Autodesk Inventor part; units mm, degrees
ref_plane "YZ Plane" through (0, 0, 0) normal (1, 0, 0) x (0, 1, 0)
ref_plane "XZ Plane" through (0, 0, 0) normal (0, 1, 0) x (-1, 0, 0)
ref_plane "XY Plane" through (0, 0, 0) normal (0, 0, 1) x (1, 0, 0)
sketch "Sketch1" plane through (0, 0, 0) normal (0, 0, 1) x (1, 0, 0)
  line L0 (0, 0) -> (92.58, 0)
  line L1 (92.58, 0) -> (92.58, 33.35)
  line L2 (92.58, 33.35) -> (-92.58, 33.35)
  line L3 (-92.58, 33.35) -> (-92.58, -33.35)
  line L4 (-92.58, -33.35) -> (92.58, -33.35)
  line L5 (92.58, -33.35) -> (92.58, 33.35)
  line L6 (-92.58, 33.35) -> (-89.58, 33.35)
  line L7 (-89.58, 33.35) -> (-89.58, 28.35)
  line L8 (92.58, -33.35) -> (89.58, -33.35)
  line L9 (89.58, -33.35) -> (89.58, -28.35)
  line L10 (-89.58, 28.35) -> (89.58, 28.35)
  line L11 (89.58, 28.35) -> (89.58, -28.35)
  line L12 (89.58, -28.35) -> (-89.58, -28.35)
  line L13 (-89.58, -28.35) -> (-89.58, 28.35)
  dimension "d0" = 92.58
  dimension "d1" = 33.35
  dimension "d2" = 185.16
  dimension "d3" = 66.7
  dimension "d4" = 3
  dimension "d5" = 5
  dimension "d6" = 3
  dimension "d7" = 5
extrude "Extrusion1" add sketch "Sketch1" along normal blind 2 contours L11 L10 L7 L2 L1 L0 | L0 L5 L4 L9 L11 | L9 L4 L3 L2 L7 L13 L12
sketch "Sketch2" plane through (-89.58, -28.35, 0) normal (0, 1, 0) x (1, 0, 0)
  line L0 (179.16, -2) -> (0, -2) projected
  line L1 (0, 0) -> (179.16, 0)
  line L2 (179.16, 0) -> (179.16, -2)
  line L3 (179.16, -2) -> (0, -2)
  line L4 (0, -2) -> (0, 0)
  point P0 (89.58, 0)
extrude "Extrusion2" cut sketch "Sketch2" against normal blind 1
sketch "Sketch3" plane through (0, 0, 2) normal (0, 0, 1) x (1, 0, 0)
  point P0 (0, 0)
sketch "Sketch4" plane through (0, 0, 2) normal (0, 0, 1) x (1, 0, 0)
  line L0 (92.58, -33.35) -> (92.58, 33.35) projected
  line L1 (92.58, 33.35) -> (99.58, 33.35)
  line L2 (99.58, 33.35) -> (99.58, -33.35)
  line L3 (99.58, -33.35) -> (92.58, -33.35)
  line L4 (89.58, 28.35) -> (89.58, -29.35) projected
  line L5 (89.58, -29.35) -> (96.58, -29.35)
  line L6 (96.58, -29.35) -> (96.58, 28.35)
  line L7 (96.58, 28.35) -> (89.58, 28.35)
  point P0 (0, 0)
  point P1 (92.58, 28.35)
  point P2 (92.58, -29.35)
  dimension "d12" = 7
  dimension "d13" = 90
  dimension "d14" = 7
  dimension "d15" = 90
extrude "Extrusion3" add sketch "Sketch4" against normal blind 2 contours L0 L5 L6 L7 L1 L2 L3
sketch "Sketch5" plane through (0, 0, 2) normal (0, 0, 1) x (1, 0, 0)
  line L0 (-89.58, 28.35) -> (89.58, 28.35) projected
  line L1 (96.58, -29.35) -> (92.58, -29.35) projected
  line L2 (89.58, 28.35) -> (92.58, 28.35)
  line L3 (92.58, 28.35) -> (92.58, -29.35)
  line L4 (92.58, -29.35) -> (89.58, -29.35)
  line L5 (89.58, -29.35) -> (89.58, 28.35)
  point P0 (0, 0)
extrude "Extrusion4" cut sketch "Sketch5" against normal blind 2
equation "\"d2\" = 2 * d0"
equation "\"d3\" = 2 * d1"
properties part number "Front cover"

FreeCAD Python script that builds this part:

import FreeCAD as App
import Part
import Sketcher

V = App.Vector
Q = App.Units.Quantity

doc = App.newDocument("Part")
body = doc.addObject("PartDesign::Body", "Body")

# Sketch on XY plane
sketch1 = doc.addObject("Sketcher::SketchObject", "Sketch")
body.addObject(sketch1)
sketch1.AttachmentSupport = (doc.XY_Plane, [""])
sketch1.MapMode = "FlatFace"
sketch1.addGeometry([
    Part.LineSegment(V(93, 33, 0), V(-93, 33, 0)),  # 0
    Part.LineSegment(V(-93, 33, 0), V(-93, -33, 0)),  # 1
    Part.LineSegment(V(-93, -33, 0), V(93, -33, 0)),  # 2
    Part.LineSegment(V(93, -33, 0), V(93, 33, 0)),  # 3
    Part.LineSegment(V(90, 28, 0), V(90, -28, 0)),  # 4
    Part.LineSegment(V(90, -28, 0), V(-90, -28, 0)),  # 5
    Part.LineSegment(V(-90, -28, 0), V(-90, 28, 0)),  # 6
    Part.LineSegment(V(-90, 28, 0), V(90, 28, 0)),  # 7
], False)
sketch1.addConstraint([
    Sketcher.Constraint("Coincident", 0, 2, 1, 1),
    Sketcher.Constraint("Coincident", 1, 2, 2, 1),
    Sketcher.Constraint("Coincident", 2, 2, 3, 1),
    Sketcher.Constraint("Coincident", 3, 2, 0, 1),
    Sketcher.Constraint("Coincident", 4, 2, 5, 1),
    Sketcher.Constraint("Coincident", 5, 2, 6, 1),
    Sketcher.Constraint("Coincident", 6, 2, 7, 1),
    Sketcher.Constraint("Coincident", 7, 2, 4, 1),
    Sketcher.Constraint("Horizontal", 0),
    Sketcher.Constraint("Vertical", 1),
    Sketcher.Constraint("Horizontal", 2),
    Sketcher.Constraint("Vertical", 3),
    Sketcher.Constraint("Vertical", 4),
    Sketcher.Constraint("Horizontal", 5),
    Sketcher.Constraint("Vertical", 6),
    Sketcher.Constraint("Horizontal", 7),
    Sketcher.Constraint("Symmetric", 0, 2, 2, 2, -1, 1),
    Sketcher.Constraint("Symmetric", 4, 2, 6, 2, -1, 1),
    Sketcher.Constraint("DistanceY", 1, 2, 1, 1, Q("66.7 mm")),
    Sketcher.Constraint("DistanceX", 4, 2, 2, 2, Q("3 mm")),
    Sketcher.Constraint("DistanceY", 2, 2, 4, 2, Q("5 mm")),
    Sketcher.Constraint("DistanceX", 0, 2, 0, 1, Q("185.16 mm")),
])
pad1 = doc.addObject("PartDesign::Pad", "Pad")
body.addObject(pad1)
pad1.Profile = sketch1
pad1.Length = 2

# Sketch on XZ plane
sketch2 = doc.addObject("Sketcher::SketchObject", "Sketch001")
body.addObject(sketch2)
sketch2.AttachmentSupport = (doc.XZ_Plane, [""])
sketch2.MapMode = "FlatFace"
sketch2.AttachmentOffset = App.Placement(V(0, 0, 28.35), App.Rotation())
sketch2.addGeometry([
    Part.LineSegment(V(-89.6, 2, 0), V(89.6, 2, 0)),
    Part.LineSegment(V(89.6, 2, 0), V(89.6, 0, 0)),
    Part.LineSegment(V(89.6, 0, 0), V(-89.6, 0, 0)),
    Part.LineSegment(V(-89.6, 0, 0), V(-89.6, 2, 0)),
], False)
sketch2.addConstraint([
    Sketcher.Constraint("Coincident", 0, 2, 1, 1),
    Sketcher.Constraint("Coincident", 1, 2, 2, 1),
    Sketcher.Constraint("Coincident", 2, 2, 3, 1),
    Sketcher.Constraint("Coincident", 3, 2, 0, 1),
    Sketcher.Constraint("Horizontal", 0),
    Sketcher.Constraint("Vertical", 1),
    Sketcher.Constraint("Horizontal", 2),
    Sketcher.Constraint("Vertical", 3),
    Sketcher.Constraint("Symmetric", 1, 2, 2, 2, -1, 1),
    Sketcher.Constraint("DistanceY", 1, 2, 1, 1, Q("2 mm")),
    Sketcher.Constraint("DistanceX", 0, 1, 0, 2, Q("179.16 mm")),
])
pocket1 = doc.addObject("PartDesign::Pocket", "Pocket")
body.addObject(pocket1)
pocket1.Profile = sketch2
pocket1.Length = 1
pocket1.Reversed = True

# Sketch on XY plane
sketch3 = doc.addObject("Sketcher::SketchObject", "Sketch002")
body.addObject(sketch3)
sketch3.AttachmentSupport = (doc.XY_Plane, [""])
sketch3.MapMode = "FlatFace"
sketch3.AttachmentOffset = App.Placement(V(0, 0, 2), App.Rotation())
sketch3.addGeometry([
    Part.LineSegment(V(92.6, -29.4, 0), V(92.6, -33.4, 0)),  # 0
    Part.LineSegment(V(92.6, -33.4, 0), V(99.6, -33.4, 0)),  # 1
    Part.LineSegment(V(99.6, -33.4, 0), V(99.6, 33.4, 0)),  # 2
    Part.LineSegment(V(99.6, 33.4, 0), V(92.6, 33.4, 0)),  # 3
    Part.LineSegment(V(92.6, 33.4, 0), V(92.6, 28.4, 0)),  # 4
    Part.LineSegment(V(92.6, 28.4, 0), V(96.6, 28.4, 0)),  # 5
    Part.LineSegment(V(96.6, 28.4, 0), V(96.6, -29.4, 0)),  # 6
    Part.LineSegment(V(96.6, -29.4, 0), V(92.6, -29.4, 0)),  # 7
], False)
sketch3.addConstraint([
    Sketcher.Constraint("Coincident", 0, 2, 1, 1),
    Sketcher.Constraint("Coincident", 1, 2, 2, 1),
    Sketcher.Constraint("Coincident", 2, 2, 3, 1),
    Sketcher.Constraint("Coincident", 3, 2, 4, 1),
    Sketcher.Constraint("Coincident", 4, 2, 5, 1),
    Sketcher.Constraint("Coincident", 5, 2, 6, 1),
    Sketcher.Constraint("Coincident", 6, 2, 7, 1),
    Sketcher.Constraint("Coincident", 7, 2, 0, 1),
    Sketcher.Constraint("Vertical", 0),
    Sketcher.Constraint("Horizontal", 1),
    Sketcher.Constraint("Vertical", 2),
    Sketcher.Constraint("Horizontal", 3),
    Sketcher.Constraint("Vertical", 4),
    Sketcher.Constraint("Horizontal", 5),
    Sketcher.Constraint("Vertical", 6),
    Sketcher.Constraint("Horizontal", 7),
    Sketcher.Constraint("Symmetric", 0, 2, 3, 2, -1),
    Sketcher.Constraint("Equal", 7, 0),
    Sketcher.Constraint("DistanceX", 1, 1, 1, 2, Q("7 mm")),
    Sketcher.Constraint("DistanceX", 5, 1, 5, 2, Q("4 mm")),
    Sketcher.Constraint("DistanceY", 4, 2, 4, 1, Q("5 mm")),
    Sketcher.Constraint("DistanceY", 2, 1, 2, 2, Q("66.7 mm")),
    Sketcher.Constraint("DistanceX", -1, 1, 0, 2, Q("92.58 mm")),
])
pad2 = doc.addObject("PartDesign::Pad", "Pad001")
body.addObject(pad2)
pad2.Profile = sketch3
pad2.Length = 2
pad2.Reversed = True

# Sketch on XY plane
sketch4 = doc.addObject("Sketcher::SketchObject", "Sketch003")
body.addObject(sketch4)
sketch4.AttachmentSupport = (doc.XY_Plane, [""])
sketch4.MapMode = "FlatFace"
sketch4.AttachmentOffset = App.Placement(V(0, 0, 2), App.Rotation())
sketch4.addGeometry([
    Part.LineSegment(V(92.6, 28.4, 0), V(89.6, 28.4, 0)),
    Part.LineSegment(V(89.6, 28.4, 0), V(89.6, -29.4, 0)),
    Part.LineSegment(V(89.6, -29.4, 0), V(92.6, -29.4, 0)),
    Part.LineSegment(V(92.6, -29.4, 0), V(92.6, 28.4, 0)),
], False)
sketch4.addConstraint([
    Sketcher.Constraint("Coincident", 0, 2, 1, 1),
    Sketcher.Constraint("Coincident", 1, 2, 2, 1),
    Sketcher.Constraint("Coincident", 2, 2, 3, 1),
    Sketcher.Constraint("Coincident", 3, 2, 0, 1),
    Sketcher.Constraint("Horizontal", 0),
    Sketcher.Constraint("Vertical", 1),
    Sketcher.Constraint("Horizontal", 2),
    Sketcher.Constraint("Vertical", 3),
    Sketcher.Constraint("DistanceX", 0, 2, 0, 1, Q("3 mm")),
    Sketcher.Constraint("DistanceY", 1, 2, 1, 1, Q("57.7 mm")),
    Sketcher.Constraint("DistanceX", -1, 1, 0, 2, Q("89.58 mm")),
    Sketcher.Constraint("DistanceY", -1, 1, 0, 2, Q("28.35 mm")),
])
pocket2 = doc.addObject("PartDesign::Pocket", "Pocket001")
body.addObject(pocket2)
pocket2.Profile = sketch4
pocket2.Length = 2

doc.recompute()
